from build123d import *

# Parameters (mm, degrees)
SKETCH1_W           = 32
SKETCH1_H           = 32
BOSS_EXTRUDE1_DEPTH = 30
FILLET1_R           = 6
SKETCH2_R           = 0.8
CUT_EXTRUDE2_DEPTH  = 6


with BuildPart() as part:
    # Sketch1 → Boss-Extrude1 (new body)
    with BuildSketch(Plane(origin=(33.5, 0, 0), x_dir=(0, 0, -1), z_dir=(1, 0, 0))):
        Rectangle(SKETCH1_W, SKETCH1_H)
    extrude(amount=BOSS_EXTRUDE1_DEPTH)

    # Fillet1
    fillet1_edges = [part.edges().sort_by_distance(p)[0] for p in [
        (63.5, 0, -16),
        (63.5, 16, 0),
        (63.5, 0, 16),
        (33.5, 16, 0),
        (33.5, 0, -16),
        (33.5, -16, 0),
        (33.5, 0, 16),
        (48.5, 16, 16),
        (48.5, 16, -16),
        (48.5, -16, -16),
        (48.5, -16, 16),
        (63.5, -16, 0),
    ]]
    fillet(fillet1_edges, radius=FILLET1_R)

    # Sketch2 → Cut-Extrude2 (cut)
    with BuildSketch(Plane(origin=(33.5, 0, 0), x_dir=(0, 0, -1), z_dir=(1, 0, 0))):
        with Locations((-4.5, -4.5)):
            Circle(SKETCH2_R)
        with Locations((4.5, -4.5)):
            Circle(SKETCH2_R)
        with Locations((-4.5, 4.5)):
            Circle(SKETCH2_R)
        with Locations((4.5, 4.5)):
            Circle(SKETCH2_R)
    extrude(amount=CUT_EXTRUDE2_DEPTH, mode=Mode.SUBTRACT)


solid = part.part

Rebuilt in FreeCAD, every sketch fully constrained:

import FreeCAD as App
import Part
import Sketcher
from FreeCAD import Vector


def add_polygon(sketch, points):
    """Adds a closed chain of lines whose ends are joined by coincident constraints."""
    first, n = sketch.GeometryCount, len(points)
    for a, b in zip(points, points[1:] + points[:1]):
        sketch.addGeometry(Part.LineSegment(App.Vector(*a, 0), App.Vector(*b, 0)), False)
    for i in range(n):
        sketch.addConstraint(Sketcher.Constraint("Coincident", first + i, 2, first + (i + 1) % n, 1))

doc = App.newDocument("Part")
body = doc.addObject("PartDesign::Body", "Body")

# Sketch on YZ plane
sketch1 = body.newObject("Sketcher::SketchObject", "Sketch")
sketch1.AttachmentSupport = (doc.getObject("YZ_Plane"), [""])
sketch1.MapMode = "FlatFace"
sketch1.AttachmentOffset = App.Placement(Vector(0, 0, 33.5), App.Rotation())
add_polygon(sketch1, [(16, 16), (-16, 16), (-16, -16), (16, -16)])  # lines 0-3
sketch1.addConstraint([
    Sketcher.Constraint("Horizontal", 0),
    Sketcher.Constraint("Vertical", 1),
    Sketcher.Constraint("Horizontal", 2),
    Sketcher.Constraint("Vertical", 3),
    Sketcher.Constraint("Symmetric", 0, 2, 2, 2, -1, 1),
    Sketcher.Constraint("Equal", 2, 1),
    Sketcher.Constraint("DistanceX", 0, 2, 0, 1, 32.0),
])
pad1 = body.newObject("PartDesign::Pad", "Pad")
pad1.Profile = sketch1
pad1.Length = 30
doc.recompute()

fillet = body.newObject("PartDesign::Fillet", "Fillet")
fillet.Base = (pad1, ["Edge1"])
fillet.UseAllEdges = True
fillet.Radius = 6

# Sketch on YZ plane
sketch2 = body.newObject("Sketcher::SketchObject", "Sketch001")
sketch2.AttachmentSupport = (doc.getObject("YZ_Plane"), [""])
sketch2.MapMode = "FlatFace"
sketch2.AttachmentOffset = App.Placement(Vector(0, 0, 33.5), App.Rotation())
sketch2.addGeometry([
    Part.Circle(Vector(-4.5, 4.5, 0), Vector(0, 0, 1), 0.8),
    Part.Circle(Vector(-4.5, -4.5, 0), Vector(0, 0, 1), 0.8),
    Part.Circle(Vector(4.5, 4.5, 0), Vector(0, 0, 1), 0.8),
    Part.Circle(Vector(4.5, -4.5, 0), Vector(0, 0, 1), 0.8),
], False)
sketch2.addConstraint([
    Sketcher.Constraint("Equal", 0, 1),
    Sketcher.Constraint("Equal", 1, 2),
    Sketcher.Constraint("Equal", 2, 3),
    Sketcher.Constraint("Symmetric", 1, 3, 2, 3, -1, 1),
    Sketcher.Constraint("Symmetric", 0, 3, 3, 3, -1, 1),
    Sketcher.Constraint("Symmetric", 0, 3, 2, 3, -2),
    Sketcher.Constraint("Diameter", 0, 1.6),
    Sketcher.Constraint("DistanceY", 1, 3, 0, 3, 9.0),
    Sketcher.Constraint("DistanceX", 0, 3, 2, 3, 9.0),
])
pocket1 = body.newObject("PartDesign::Pocket", "Pocket")
pocket1.Profile = sketch2
pocket1.Length = 6
pocket1.Reversed = True

doc.recompute()
